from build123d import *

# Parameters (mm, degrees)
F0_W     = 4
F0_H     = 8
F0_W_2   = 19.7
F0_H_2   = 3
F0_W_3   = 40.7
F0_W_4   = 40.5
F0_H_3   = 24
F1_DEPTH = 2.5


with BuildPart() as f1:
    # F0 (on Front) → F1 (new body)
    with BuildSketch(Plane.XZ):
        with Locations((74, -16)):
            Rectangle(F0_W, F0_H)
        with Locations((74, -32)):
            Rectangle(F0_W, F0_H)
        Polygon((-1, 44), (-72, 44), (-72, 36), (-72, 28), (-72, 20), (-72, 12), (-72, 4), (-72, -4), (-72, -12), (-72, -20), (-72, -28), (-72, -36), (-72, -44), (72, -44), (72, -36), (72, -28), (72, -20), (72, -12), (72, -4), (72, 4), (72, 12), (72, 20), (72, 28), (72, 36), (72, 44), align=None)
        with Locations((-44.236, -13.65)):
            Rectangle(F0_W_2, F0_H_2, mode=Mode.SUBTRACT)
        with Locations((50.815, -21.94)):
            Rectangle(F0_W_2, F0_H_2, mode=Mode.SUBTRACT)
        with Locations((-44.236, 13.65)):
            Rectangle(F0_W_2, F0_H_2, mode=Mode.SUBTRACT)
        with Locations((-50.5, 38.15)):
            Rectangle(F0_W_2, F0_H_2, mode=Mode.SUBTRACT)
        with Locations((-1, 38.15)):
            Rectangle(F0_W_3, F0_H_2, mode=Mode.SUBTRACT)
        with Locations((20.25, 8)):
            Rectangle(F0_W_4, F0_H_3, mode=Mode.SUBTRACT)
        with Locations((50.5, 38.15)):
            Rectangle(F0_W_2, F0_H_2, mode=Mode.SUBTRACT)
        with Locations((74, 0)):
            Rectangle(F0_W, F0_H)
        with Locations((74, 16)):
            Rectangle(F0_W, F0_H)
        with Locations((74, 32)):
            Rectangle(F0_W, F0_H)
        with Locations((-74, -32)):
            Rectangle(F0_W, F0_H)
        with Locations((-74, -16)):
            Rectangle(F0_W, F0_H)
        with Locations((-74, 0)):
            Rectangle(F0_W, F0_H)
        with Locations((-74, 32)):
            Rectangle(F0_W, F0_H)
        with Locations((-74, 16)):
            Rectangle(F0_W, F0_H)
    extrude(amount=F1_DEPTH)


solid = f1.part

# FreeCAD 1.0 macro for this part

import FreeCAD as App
import Part
import Sketcher
Q = App.Units.Quantity

doc = App.newDocument("Part")
body = doc.addObject("PartDesign::Body", "Body")

sketch1 = doc.addObject("Sketcher::SketchObject", "Sketch")
body.addObject(sketch1)
sketch1.AttachmentSupport = (doc.XZ_Plane, [""])
sketch1.MapMode = "FlatFace"
sketch1.addGeometry([
    Part.LineSegment(App.Vector(72, -20, 0), App.Vector(76, -20, 0)),
    Part.LineSegment(App.Vector(76, -20, 0), App.Vector(76, -12, 0)),
    Part.LineSegment(App.Vector(76, -12, 0), App.Vector(72, -12, 0)),
    Part.LineSegment(App.Vector(72, -12, 0), App.Vector(72, -4, 0)),
    Part.LineSegment(App.Vector(72, -4, 0), App.Vector(76, -4, 0)),
    Part.LineSegment(App.Vector(76, -4, 0), App.Vector(76, 4, 0)),
    Part.LineSegment(App.Vector(76, 4, 0), App.Vector(72, 4, 0)),
    Part.LineSegment(App.Vector(72, 4, 0), App.Vector(72, 12, 0)),
    Part.LineSegment(App.Vector(72, 12, 0), App.Vector(76, 12, 0)),
    Part.LineSegment(App.Vector(76, 12, 0), App.Vector(76, 20, 0)),
    Part.LineSegment(App.Vector(76, 20, 0), App.Vector(72, 20, 0)),
    Part.LineSegment(App.Vector(72, 20, 0), App.Vector(72, 28, 0)),
    Part.LineSegment(App.Vector(72, 28, 0), App.Vector(76, 28, 0)),
    Part.LineSegment(App.Vector(76, 28, 0), App.Vector(76, 36, 0)),
    Part.LineSegment(App.Vector(76, 36, 0), App.Vector(72, 36, 0)),
    Part.LineSegment(App.Vector(72, 36, 0), App.Vector(72, 44, 0)),
    Part.LineSegment(App.Vector(72, 44, 0), App.Vector(-72, 44, 0)),
    Part.LineSegment(App.Vector(-72, 44, 0), App.Vector(-72, 36, 0)),
    Part.LineSegment(App.Vector(-72, 36, 0), App.Vector(-76, 36, 0)),
    Part.LineSegment(App.Vector(-76, 36, 0), App.Vector(-76, 28, 0)),
    Part.LineSegment(App.Vector(-76, 28, 0), App.Vector(-72, 28, 0)),
    Part.LineSegment(App.Vector(-72, 28, 0), App.Vector(-72, 20, 0)),
    Part.LineSegment(App.Vector(-72, 20, 0), App.Vector(-76, 20, 0)),
    Part.LineSegment(App.Vector(-76, 20, 0), App.Vector(-76, 12, 0)),
    Part.LineSegment(App.Vector(-76, 12, 0), App.Vector(-72, 12, 0)),
    Part.LineSegment(App.Vector(-72, 12, 0), App.Vector(-72, 4, 0)),
    Part.LineSegment(App.Vector(-72, 4, 0), App.Vector(-76, 4, 0)),
    Part.LineSegment(App.Vector(-76, 4, 0), App.Vector(-76, -4, 0)),
    Part.LineSegment(App.Vector(-76, -4, 0), App.Vector(-72, -4, 0)),
    Part.LineSegment(App.Vector(-72, -4, 0), App.Vector(-72, -12, 0)),
    Part.LineSegment(App.Vector(-72, -12, 0), App.Vector(-76, -12, 0)),
    Part.LineSegment(App.Vector(-76, -12, 0), App.Vector(-76, -20, 0)),
    Part.LineSegment(App.Vector(-76, -20, 0), App.Vector(-72, -20, 0)),
    Part.LineSegment(App.Vector(-72, -20, 0), App.Vector(-72, -28, 0)),
    Part.LineSegment(App.Vector(-72, -28, 0), App.Vector(-76, -28, 0)),
    Part.LineSegment(App.Vector(-76, -28, 0), App.Vector(-76, -36, 0)),
    Part.LineSegment(App.Vector(-76, -36, 0), App.Vector(-72, -36, 0)),
    Part.LineSegment(App.Vector(-72, -36, 0), App.Vector(-72, -44, 0)),
    Part.LineSegment(App.Vector(-72, -44, 0), App.Vector(72, -44, 0)),
    Part.LineSegment(App.Vector(72, -44, 0), App.Vector(72, -36, 0)),
    Part.LineSegment(App.Vector(72, -36, 0), App.Vector(76, -36, 0)),
    Part.LineSegment(App.Vector(76, -36, 0), App.Vector(76, -28, 0)),
    Part.LineSegment(App.Vector(76, -28, 0), App.Vector(72, -28, 0)),
    Part.LineSegment(App.Vector(72, -28, 0), App.Vector(72, -20, 0)),
    Part.LineSegment(App.Vector(-34.4, -15.2, 0), App.Vector(-54.1, -15.2, 0)),
    Part.LineSegment(App.Vector(-54.1, -15.2, 0), App.Vector(-54.1, -12.2, 0)),
    Part.LineSegment(App.Vector(-54.1, -12.2, 0), App.Vector(-34.4, -12.2, 0)),
    Part.LineSegment(App.Vector(-34.4, -12.2, 0), App.Vector(-34.4, -15.2, 0)),
    Part.LineSegment(App.Vector(60.7, -23.4, 0), App.Vector(41, -23.4, 0)),
    Part.LineSegment(App.Vector(41, -23.4, 0), App.Vector(41, -20.4, 0)),
    Part.LineSegment(App.Vector(41, -20.4, 0), App.Vector(60.7, -20.4, 0)),
    Part.LineSegment(App.Vector(60.7, -20.4, 0), App.Vector(60.7, -23.4, 0)),
    Part.LineSegment(App.Vector(40.5, -4, 0), App.Vector(0, -4, 0)),
    Part.LineSegment(App.Vector(0, -4, 0), App.Vector(0, 20, 0)),
    Part.LineSegment(App.Vector(0, 20, 0), App.Vector(40.5, 20, 0)),
    Part.LineSegment(App.Vector(40.5, 20, 0), App.Vector(40.5, -4, 0)),
    Part.LineSegment(App.Vector(-34.4, 12.2, 0), App.Vector(-54.1, 12.2, 0)),
    Part.LineSegment(App.Vector(-54.1, 12.2, 0), App.Vector(-54.1, 15.2, 0)),
    Part.LineSegment(App.Vector(-54.1, 15.2, 0), App.Vector(-34.4, 15.2, 0)),
    Part.LineSegment(App.Vector(-34.4, 15.2, 0), App.Vector(-34.4, 12.2, 0)),
    Part.LineSegment(App.Vector(-40.6, 36.6, 0), App.Vector(-60.4, 36.6, 0)),
    Part.LineSegment(App.Vector(-60.4, 36.6, 0), App.Vector(-60.4, 39.6, 0)),
    Part.LineSegment(App.Vector(-60.4, 39.6, 0), App.Vector(-40.6, 39.6, 0)),
    Part.LineSegment(App.Vector(-40.6, 39.6, 0), App.Vector(-40.6, 36.6, 0)),
    Part.LineSegment(App.Vector(19.4, 36.6, 0), App.Vector(-21.4, 36.6, 0)),
    Part.LineSegment(App.Vector(-21.4, 36.6, 0), App.Vector(-21.4, 39.6, 0)),
    Part.LineSegment(App.Vector(-21.4, 39.6, 0), App.Vector(19.4, 39.6, 0)),
    Part.LineSegment(App.Vector(19.4, 39.6, 0), App.Vector(19.4, 36.6, 0)),
    Part.LineSegment(App.Vector(60.4, 36.6, 0), App.Vector(40.6, 36.6, 0)),
    Part.LineSegment(App.Vector(40.6, 36.6, 0), App.Vector(40.6, 39.6, 0)),
    Part.LineSegment(App.Vector(40.6, 39.6, 0), App.Vector(60.4, 39.6, 0)),
    Part.LineSegment(App.Vector(60.4, 39.6, 0), App.Vector(60.4, 36.6, 0)),
], False)
sketch1.addConstraint([
    Sketcher.Constraint("Coincident", 0, 2, 1, 1),
    Sketcher.Constraint("Coincident", 1, 2, 2, 1),
    Sketcher.Constraint("Coincident", 2, 2, 3, 1),
    Sketcher.Constraint("Coincident", 3, 2, 4, 1),
    Sketcher.Constraint("Coincident", 4, 2, 5, 1),
    Sketcher.Constraint("Coincident", 5, 2, 6, 1),
    Sketcher.Constraint("Coincident", 6, 2, 7, 1),
    Sketcher.Constraint("Coincident", 7, 2, 8, 1),
    Sketcher.Constraint("Coincident", 8, 2, 9, 1),
    Sketcher.Constraint("Coincident", 9, 2, 10, 1),
    Sketcher.Constraint("Coincident", 10, 2, 11, 1),
    Sketcher.Constraint("Coincident", 11, 2, 12, 1),
    Sketcher.Constraint("Coincident", 12, 2, 13, 1),
    Sketcher.Constraint("Coincident", 13, 2, 14, 1),
    Sketcher.Constraint("Coincident", 14, 2, 15, 1),
    Sketcher.Constraint("Coincident", 15, 2, 16, 1),
    Sketcher.Constraint("Coincident", 16, 2, 17, 1),
    Sketcher.Constraint("Coincident", 17, 2, 18, 1),
    Sketcher.Constraint("Coincident", 18, 2, 19, 1),
    Sketcher.Constraint("Coincident", 19, 2, 20, 1),
    Sketcher.Constraint("Coincident", 20, 2, 21, 1),
    Sketcher.Constraint("Coincident", 21, 2, 22, 1),
    Sketcher.Constraint("Coincident", 22, 2, 23, 1),
    Sketcher.Constraint("Coincident", 23, 2, 24, 1),
    Sketcher.Constraint("Coincident", 24, 2, 25, 1),
    Sketcher.Constraint("Coincident", 25, 2, 26, 1),
    Sketcher.Constraint("Coincident", 26, 2, 27, 1),
    Sketcher.Constraint("Coincident", 27, 2, 28, 1),
    Sketcher.Constraint("Coincident", 28, 2, 29, 1),
    Sketcher.Constraint("Coincident", 29, 2, 30, 1),
    Sketcher.Constraint("Coincident", 30, 2, 31, 1),
    Sketcher.Constraint("Coincident", 31, 2, 32, 1),
    Sketcher.Constraint("Coincident", 32, 2, 33, 1),
    Sketcher.Constraint("Coincident", 33, 2, 34, 1),
    Sketcher.Constraint("Coincident", 34, 2, 35, 1),
    Sketcher.Constraint("Coincident", 35, 2, 36, 1),
    Sketcher.Constraint("Coincident", 36, 2, 37, 1),
    Sketcher.Constraint("Coincident", 37, 2, 38, 1),
    Sketcher.Constraint("Coincident", 38, 2, 39, 1),
    Sketcher.Constraint("Coincident", 39, 2, 40, 1),
    Sketcher.Constraint("Coincident", 40, 2, 41, 1),
    Sketcher.Constraint("Coincident", 41, 2, 42, 1),
    Sketcher.Constraint("Coincident", 42, 2, 43, 1),
    Sketcher.Constraint("Coincident", 43, 2, 0, 1),
    Sketcher.Constraint("Coincident", 44, 2, 45, 1),
    Sketcher.Constraint("Coincident", 45, 2, 46, 1),
    Sketcher.Constraint("Coincident", 46, 2, 47, 1),
    Sketcher.Constraint("Coincident", 47, 2, 44, 1),
    Sketcher.Constraint("Coincident", 48, 2, 49, 1),
    Sketcher.Constraint("Coincident", 49, 2, 50, 1),
    Sketcher.Constraint("Coincident", 50, 2, 51, 1),
    Sketcher.Constraint("Coincident", 51, 2, 48, 1),
    Sketcher.Constraint("Coincident", 52, 2, 53, 1),
    Sketcher.Constraint("Coincident", 53, 2, 54, 1),
    Sketcher.Constraint("Coincident", 54, 2, 55, 1),
    Sketcher.Constraint("Coincident", 55, 2, 52, 1),
    Sketcher.Constraint("Coincident", 56, 2, 57, 1),
    Sketcher.Constraint("Coincident", 57, 2, 58, 1),
    Sketcher.Constraint("Coincident", 58, 2, 59, 1),
    Sketcher.Constraint("Coincident", 59, 2, 56, 1),
    Sketcher.Constraint("Coincident", 60, 2, 61, 1),
    Sketcher.Constraint("Coincident", 61, 2, 62, 1),
    Sketcher.Constraint("Coincident", 62, 2, 63, 1),
    Sketcher.Constraint("Coincident", 63, 2, 60, 1),
    Sketcher.Constraint("Coincident", 64, 2, 65, 1),
    Sketcher.Constraint("Coincident", 65, 2, 66, 1),
    Sketcher.Constraint("Coincident", 66, 2, 67, 1),
    Sketcher.Constraint("Coincident", 67, 2, 64, 1),
    Sketcher.Constraint("Coincident", 68, 2, 69, 1),
    Sketcher.Constraint("Coincident", 69, 2, 70, 1),
    Sketcher.Constraint("Coincident", 70, 2, 71, 1),
    Sketcher.Constraint("Coincident", 71, 2, 68, 1),
    Sketcher.Constraint("Horizontal", 0),
    Sketcher.Constraint("Vertical", 1),
    Sketcher.Constraint("Horizontal", 2),
    Sketcher.Constraint("Vertical", 3),
    Sketcher.Constraint("Horizontal", 4),
    Sketcher.Constraint("Vertical", 5),
    Sketcher.Constraint("Horizontal", 6),
    Sketcher.Constraint("Vertical", 7),
    Sketcher.Constraint("Horizontal", 8),
    Sketcher.Constraint("Vertical", 9),
    Sketcher.Constraint("Horizontal", 10),
    Sketcher.Constraint("Vertical", 11),
    Sketcher.Constraint("Horizontal", 12),
    Sketcher.Constraint("Vertical", 13),
    Sketcher.Constraint("Horizontal", 14),
    Sketcher.Constraint("Vertical", 15),
    Sketcher.Constraint("Horizontal", 16),
    Sketcher.Constraint("Vertical", 17),
    Sketcher.Constraint("Horizontal", 18),
    Sketcher.Constraint("Vertical", 19),
    Sketcher.Constraint("Horizontal", 20),
    Sketcher.Constraint("Vertical", 21),
    Sketcher.Constraint("Horizontal", 22),
    Sketcher.Constraint("Vertical", 23),
    Sketcher.Constraint("Horizontal", 24),
    Sketcher.Constraint("Vertical", 25),
    Sketcher.Constraint("Horizontal", 26),
    Sketcher.Constraint("Vertical", 27),
    Sketcher.Constraint("Horizontal", 28),
    Sketcher.Constraint("Vertical", 29),
    Sketcher.Constraint("Horizontal", 30),
    Sketcher.Constraint("Vertical", 31),
    Sketcher.Constraint("Horizontal", 32),
    Sketcher.Constraint("Vertical", 33),
    Sketcher.Constraint("Horizontal", 34),
    Sketcher.Constraint("Vertical", 35),
    Sketcher.Constraint("Horizontal", 36),
    Sketcher.Constraint("Vertical", 37),
    Sketcher.Constraint("Horizontal", 38),
    Sketcher.Constraint("Vertical", 39),
    Sketcher.Constraint("Horizontal", 40),
    Sketcher.Constraint("Vertical", 41),
    Sketcher.Constraint("Horizontal", 42),
    Sketcher.Constraint("Vertical", 43),
    Sketcher.Constraint("Horizontal", 44),
    Sketcher.Constraint("Vertical", 45),
    Sketcher.Constraint("Horizontal", 46),
    Sketcher.Constraint("Vertical", 47),
    Sketcher.Constraint("Horizontal", 48),
    Sketcher.Constraint("Vertical", 49),
    Sketcher.Constraint("Horizontal", 50),
    Sketcher.Constraint("Vertical", 51),
    Sketcher.Constraint("Horizontal", 52),
    Sketcher.Constraint("Vertical", 53),
    Sketcher.Constraint("Horizontal", 54),
    Sketcher.Constraint("Vertical", 55),
    Sketcher.Constraint("Horizontal", 56),
    Sketcher.Constraint("Vertical", 57),
    Sketcher.Constraint("Horizontal", 58),
    Sketcher.Constraint("Vertical", 59),
    Sketcher.Constraint("Horizontal", 60),
    Sketcher.Constraint("Vertical", 61),
    Sketcher.Constraint("Horizontal", 62),
    Sketcher.Constraint("Vertical", 63),
    Sketcher.Constraint("Horizontal", 64),
    Sketcher.Constraint("Vertical", 65),
    Sketcher.Constraint("Horizontal", 66),
    Sketcher.Constraint("Vertical", 67),
    Sketcher.Constraint("Horizontal", 68),
    Sketcher.Constraint("Vertical", 69),
    Sketcher.Constraint("Horizontal", 70),
    Sketcher.Constraint("Vertical", 71),
    Sketcher.Constraint("Symmetric", 0, 2, 22, 2, -1, 1),
    Sketcher.Constraint("Symmetric", 2, 2, 24, 2, -1, 1),
    Sketcher.Constraint("Symmetric", 4, 2, 26, 2, -1, 1),
    Sketcher.Constraint("Symmetric", 6, 2, 28, 2, -1, 1),
    Sketcher.Constraint("Symmetric", 8, 2, 30, 2, -1, 1),
    Sketcher.Constraint("Symmetric", 10, 2, 32, 2, -1, 1),
    Sketcher.Constraint("Symmetric", 12, 2, 34, 2, -1, 1),
    Sketcher.Constraint("Symmetric", 14, 2, 36, 2, -1, 1),
    Sketcher.Constraint("Symmetric", 16, 2, 38, 2, -1, 1),
    Sketcher.Constraint("Symmetric", 18, 2, 40, 2, -1, 1),
    Sketcher.Constraint("Symmetric", 20, 2, 42, 2, -1, 1),
    Sketcher.Constraint("Symmetric", 14, 2, 17, 2, -2),
    Sketcher.Constraint("Symmetric", 12, 2, 19, 2, -2),
    Sketcher.Constraint("Symmetric", 10, 2, 21, 2, -2),
    Sketcher.Constraint("Symmetric", 8, 2, 23, 2, -2),
    Sketcher.Constraint("Symmetric", 6, 2, 25, 2, -2),
    Sketcher.Constraint("Symmetric", 63, 2, 68, 2, -2),
    Sketcher.Constraint("Symmetric", 61, 2, 70, 2, -2),
    Sketcher.Constraint("Symmetric", 45, 2, 56, 2, -1),
    Sketcher.Constraint("Symmetric", 47, 2, 58, 2, -1),
    Sketcher.Constraint("PointOnObject", 52, 2, -2),
    Sketcher.Constraint("Horizontal", 28, 2, 52, 2),
    Sketcher.Constraint("Horizontal", 22, 2, 53, 2),
    Sketcher.Constraint("Horizontal", 63, 2, 64, 2),
    Sketcher.Constraint("Horizontal", 62, 2, 65, 2),
    Sketcher.Constraint("Vertical", 1, 2, 4, 2),
    Sketcher.Constraint("Vertical", 7, 2, 10, 2),
    Sketcher.Constraint("Vertical", 9, 2, 12, 2),
    Sketcher.Constraint("Vertical", 11, 2, 14, 2),
    Sketcher.Constraint("Equal", 46, 48),
    Sketcher.Constraint("Equal", 58, 60),
    Sketcher.Constraint("Equal", 1, 3),
    Sketcher.Constraint("Equal", 3, 5),
    Sketcher.Constraint("Equal", 9, 11),
    Sketcher.Constraint("Equal", 11, 13),
    Sketcher.Constraint("Equal", 13, 15),
    Sketcher.Constraint("Equal", 47, 49),
    Sketcher.Constraint("Equal", 59, 61),
    Sketcher.Constraint("DistanceX", 0, 1, 0, 2, Q("4 mm")),
    Sketcher.Constraint("DistanceX", 16, 2, 16, 1, Q("144 mm")),
    Sketcher.Constraint("DistanceY", 1, 1, 1, 2, Q("8 mm")),
    Sketcher.Constraint("DistanceY", 45, 1, 45, 2, Q("3 mm")),
    Sketcher.Constraint("DistanceX", 44, 2, 44, 1, Q("19.7 mm")),
    Sketcher.Constraint("DistanceX", 52, 2, 52, 1, Q("40.5 mm")),
    Sketcher.Constraint("DistanceX", 64, 2, 64, 1, Q("40.7 mm")),
    Sketcher.Constraint("DistanceY", 44, 2, -1, 1, Q("15.15 mm")),
    Sketcher.Constraint("DistanceY", 48, 2, -1, 1, Q("23.44 mm")),
    Sketcher.Constraint("DistanceX", 60, 2, -1, 1, Q("60.35 mm")),
    Sketcher.Constraint("DistanceY", -1, 1, 60, 2, Q("36.65 mm")),
    Sketcher.Constraint("DistanceX", 64, 2, -1, 1, Q("21.35 mm")),
    Sketcher.Constraint("DistanceX", 44, 2, -1, 1, Q("54.086 mm")),
    Sketcher.Constraint("DistanceX", -1, 1, 48, 2, Q("40.965 mm")),
])
pad1 = doc.addObject("PartDesign::Pad", "Pad")
body.addObject(pad1)
pad1.Profile = sketch1
pad1.Length = 2.5

doc.recompute()
